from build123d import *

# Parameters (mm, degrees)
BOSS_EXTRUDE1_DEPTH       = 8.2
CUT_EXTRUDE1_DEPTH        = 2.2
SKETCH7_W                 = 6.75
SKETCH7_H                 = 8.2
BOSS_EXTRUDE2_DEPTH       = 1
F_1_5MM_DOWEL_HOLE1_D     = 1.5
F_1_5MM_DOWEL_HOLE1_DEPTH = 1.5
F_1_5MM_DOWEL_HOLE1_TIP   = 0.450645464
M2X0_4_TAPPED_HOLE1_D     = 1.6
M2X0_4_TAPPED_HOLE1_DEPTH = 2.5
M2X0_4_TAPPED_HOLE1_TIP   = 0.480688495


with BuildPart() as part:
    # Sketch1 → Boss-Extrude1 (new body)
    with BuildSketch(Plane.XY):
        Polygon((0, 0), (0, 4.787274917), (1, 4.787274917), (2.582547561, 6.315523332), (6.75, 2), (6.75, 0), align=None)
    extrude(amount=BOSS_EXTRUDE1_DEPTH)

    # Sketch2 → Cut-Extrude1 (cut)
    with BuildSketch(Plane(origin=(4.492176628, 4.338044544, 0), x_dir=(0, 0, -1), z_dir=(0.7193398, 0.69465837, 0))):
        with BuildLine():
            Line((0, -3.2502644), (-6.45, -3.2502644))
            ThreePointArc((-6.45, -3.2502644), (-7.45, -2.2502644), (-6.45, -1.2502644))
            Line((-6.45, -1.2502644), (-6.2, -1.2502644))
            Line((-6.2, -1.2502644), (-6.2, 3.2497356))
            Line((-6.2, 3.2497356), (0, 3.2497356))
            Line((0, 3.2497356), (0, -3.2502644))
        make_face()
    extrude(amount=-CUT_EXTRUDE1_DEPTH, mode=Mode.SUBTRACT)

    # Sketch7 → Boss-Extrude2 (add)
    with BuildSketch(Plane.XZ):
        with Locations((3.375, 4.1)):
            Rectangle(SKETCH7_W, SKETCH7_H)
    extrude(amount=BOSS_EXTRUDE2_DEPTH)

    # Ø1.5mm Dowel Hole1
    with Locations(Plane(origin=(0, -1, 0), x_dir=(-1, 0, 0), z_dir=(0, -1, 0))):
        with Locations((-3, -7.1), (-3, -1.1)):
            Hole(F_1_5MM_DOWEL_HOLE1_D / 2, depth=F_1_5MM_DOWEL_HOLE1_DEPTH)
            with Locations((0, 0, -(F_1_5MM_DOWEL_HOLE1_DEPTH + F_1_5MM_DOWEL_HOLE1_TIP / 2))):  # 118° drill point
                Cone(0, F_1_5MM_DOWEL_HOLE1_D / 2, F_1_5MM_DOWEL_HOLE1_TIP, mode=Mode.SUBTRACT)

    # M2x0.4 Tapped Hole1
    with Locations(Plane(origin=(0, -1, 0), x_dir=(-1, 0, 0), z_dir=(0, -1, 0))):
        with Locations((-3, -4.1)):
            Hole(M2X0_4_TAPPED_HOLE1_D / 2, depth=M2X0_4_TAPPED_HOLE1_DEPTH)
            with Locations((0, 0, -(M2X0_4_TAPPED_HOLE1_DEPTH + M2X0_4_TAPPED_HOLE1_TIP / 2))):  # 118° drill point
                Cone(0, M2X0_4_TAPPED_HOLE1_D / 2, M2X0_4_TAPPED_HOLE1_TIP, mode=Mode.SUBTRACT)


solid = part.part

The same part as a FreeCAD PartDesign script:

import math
import FreeCAD as App
import Part
import Sketcher
Q = App.Units.Quantity


def add_polygon(sketch, points):
    """Adds a closed chain of lines whose ends are joined by coincident constraints."""
    first, n = sketch.GeometryCount, len(points)
    for a, b in zip(points, points[1:] + points[:1]):
        sketch.addGeometry(Part.LineSegment(App.Vector(*a, 0), App.Vector(*b, 0)), False)
    for i in range(n):
        sketch.addConstraint(Sketcher.Constraint("Coincident", first + i, 2, first + (i + 1) % n, 1))

doc = App.newDocument("Part")
body = doc.addObject("PartDesign::Body", "Body")

sketch1 = body.newObject("Sketcher::SketchObject", "Sketch")
sketch1.AttachmentSupport = (doc.getObject("XY_Plane"), [""])
sketch1.MapMode = "FlatFace"
add_polygon(sketch1, [(0, 4.8), (0, 0), (6.8, 0), (6.8, 2), (2.6, 6.3), (1, 4.8)])
sketch1.addConstraint([
    Sketcher.Constraint("Vertical", 0),
    Sketcher.Constraint("Horizontal", 1),
    Sketcher.Constraint("Vertical", 2),
    Sketcher.Constraint("Horizontal", 5),
    Sketcher.Constraint("Coincident", 0, 2, -1, 1),
    Sketcher.Constraint("Perpendicular", 3, 4),
    Sketcher.Constraint("DistanceX", 5, 2, 5, 1, 1.0),
    Sketcher.Constraint("DistanceY", 2, 1, 2, 2, 2.0),
    Sketcher.Constraint("Angle", 3, Q("134 deg")),
    Sketcher.Constraint("Distance", 4, 2.2),
    Sketcher.Constraint("DistanceX", 1, 1, 1, 2, 6.75),
])
pad1 = body.newObject("PartDesign::Pad", "Pad")
pad1.Profile = sketch1
pad1.Length = 8.2

sketch2 = body.newObject("Sketcher::SketchObject", "Sketch001")
sketch2.Placement = App.Placement(App.Vector(4.492177, 4.338045, 0), App.Rotation(App.Vector(0, 0, -1), App.Vector(-0.69465837, 0.7193398, 0), App.Vector(0.7193398, 0.69465837, 0), "ZXY"))
sketch2.addGeometry([
    Part.LineSegment(App.Vector(-6.45, -3.25, 0), App.Vector(0, -3.25, 0)),
    Part.LineSegment(App.Vector(0, -3.25, 0), App.Vector(0, 3.25, 0)),
    Part.LineSegment(App.Vector(0, 3.25, 0), App.Vector(-6.2, 3.25, 0)),
    Part.LineSegment(App.Vector(-6.2, 3.25, 0), App.Vector(-6.2, -1.25, 0)),
    Part.LineSegment(App.Vector(-6.2, -1.25, 0), App.Vector(-6.45, -1.25, 0)),
    Part.ArcOfCircle(Part.Circle(App.Vector(-6.45, -2.25, 0), App.Vector(0, 0, 1), 1), math.radians(90), math.radians(270)),
], False)
sketch2.addConstraint([
    Sketcher.Constraint("Coincident", 0, 2, 1, 1),
    Sketcher.Constraint("Coincident", 1, 2, 2, 1),
    Sketcher.Constraint("Coincident", 2, 2, 3, 1),
    Sketcher.Constraint("Coincident", 3, 2, 4, 1),
    Sketcher.Constraint("Tangent", 4, 2, 5, 1),
    Sketcher.Constraint("Tangent", 5, 2, 0, 1),
    Sketcher.Constraint("Horizontal", 0),
    Sketcher.Constraint("Vertical", 1),
    Sketcher.Constraint("Horizontal", 2),
    Sketcher.Constraint("Vertical", 3),
    Sketcher.Constraint("Horizontal", 4),
    Sketcher.Constraint("PointOnObject", 0, 2, -2),
    Sketcher.Constraint("Radius", 5, 1.0),
    Sketcher.Constraint("DistanceX", 2, 2, 2, 1, 6.2),
    Sketcher.Constraint("DistanceY", 1, 1, 1, 2, 6.5),
    Sketcher.Constraint("DistanceX", 0, 1, 0, 2, 6.45),
    Sketcher.Constraint("DistanceY", 5, 3, -1, 1, 2.250264),
])
pocket1 = body.newObject("PartDesign::Pocket", "Pocket")
pocket1.Profile = sketch2
pocket1.Length = 2.2

sketch3 = body.newObject("Sketcher::SketchObject", "Sketch002")
sketch3.AttachmentSupport = (doc.getObject("XZ_Plane"), [""])
sketch3.MapMode = "FlatFace"
add_polygon(sketch3, [(0, 8), (0, 0), (7, 0), (7, 8)])
sketch3.addConstraint([
    Sketcher.Constraint("Vertical", 0),
    Sketcher.Constraint("Horizontal", 1),
    Sketcher.Constraint("Vertical", 2),
    Sketcher.Constraint("Horizontal", 3),
    Sketcher.Constraint("Coincident", 0, 2, -1, 1),
    Sketcher.Constraint("DistanceY", 0, 2, 0, 1, 8.2),
    Sketcher.Constraint("DistanceX", 1, 1, 1, 2, 6.75),
])
pad2 = body.newObject("PartDesign::Pad", "Pad001")
pad2.Profile = sketch3
pad2.Length = 1

sketch4 = body.newObject("Sketcher::SketchObject", "Sketch003")
sketch4.AttachmentSupport = (doc.getObject("XZ_Plane"), [""])
sketch4.MapMode = "FlatFace"
sketch4.AttachmentOffset = App.Placement(App.Vector(0, 0, 1), App.Rotation())
sketch4.addGeometry([
    Part.Circle(App.Vector(3, 7.1, 0), App.Vector(0, 0, 1), 0.8),
    Part.Circle(App.Vector(3, 1.1, 0), App.Vector(0, 0, 1), 0.8),
], False)
sketch4.addConstraint([
    Sketcher.Constraint("Equal", 0, 1),
    Sketcher.Constraint("Vertical", 0, 3, 1, 3),
    Sketcher.Constraint("Diameter", 0, 1.5),
    Sketcher.Constraint("DistanceX", -1, 1, 0, 3, 3.0),
    Sketcher.Constraint("DistanceY", 1, 3, 0, 3, 6.0),
    Sketcher.Constraint("DistanceY", -1, 1, 0, 3, 7.1),
])
doc.recompute()
hole = body.newObject("PartDesign::Hole", "Hole")
hole.Profile = sketch4
hole.ThreadType = "None"
hole.Diameter = 1.5
hole.DepthType = "Dimension"
hole.Depth = 1.5
hole.DrillPoint = "Angled"
hole.DrillPointAngle = 118

sketch5 = body.newObject("Sketcher::SketchObject", "Sketch004")
sketch5.AttachmentSupport = (doc.getObject("XZ_Plane"), [""])
sketch5.MapMode = "FlatFace"
sketch5.AttachmentOffset = App.Placement(App.Vector(0, 0, 1), App.Rotation())
sketch5.addGeometry(Part.Circle(App.Vector(3, 4.1, 0), App.Vector(0, 0, 1), 0.8), False)
sketch5.addConstraint([
    Sketcher.Constraint("Diameter", 0, 1.6),
    Sketcher.Constraint("DistanceX", -1, 1, 0, 3, 3.0),
    Sketcher.Constraint("DistanceY", -1, 1, 0, 3, 4.1),
])
doc.recompute()
hole2 = body.newObject("PartDesign::Hole", "Hole001")
hole2.Profile = sketch5
hole2.ThreadType = "None"
hole2.Diameter = 1.6
hole2.DepthType = "Dimension"
hole2.Depth = 2.5
hole2.DrillPoint = "Angled"
hole2.DrillPointAngle = 118

doc.recompute()
